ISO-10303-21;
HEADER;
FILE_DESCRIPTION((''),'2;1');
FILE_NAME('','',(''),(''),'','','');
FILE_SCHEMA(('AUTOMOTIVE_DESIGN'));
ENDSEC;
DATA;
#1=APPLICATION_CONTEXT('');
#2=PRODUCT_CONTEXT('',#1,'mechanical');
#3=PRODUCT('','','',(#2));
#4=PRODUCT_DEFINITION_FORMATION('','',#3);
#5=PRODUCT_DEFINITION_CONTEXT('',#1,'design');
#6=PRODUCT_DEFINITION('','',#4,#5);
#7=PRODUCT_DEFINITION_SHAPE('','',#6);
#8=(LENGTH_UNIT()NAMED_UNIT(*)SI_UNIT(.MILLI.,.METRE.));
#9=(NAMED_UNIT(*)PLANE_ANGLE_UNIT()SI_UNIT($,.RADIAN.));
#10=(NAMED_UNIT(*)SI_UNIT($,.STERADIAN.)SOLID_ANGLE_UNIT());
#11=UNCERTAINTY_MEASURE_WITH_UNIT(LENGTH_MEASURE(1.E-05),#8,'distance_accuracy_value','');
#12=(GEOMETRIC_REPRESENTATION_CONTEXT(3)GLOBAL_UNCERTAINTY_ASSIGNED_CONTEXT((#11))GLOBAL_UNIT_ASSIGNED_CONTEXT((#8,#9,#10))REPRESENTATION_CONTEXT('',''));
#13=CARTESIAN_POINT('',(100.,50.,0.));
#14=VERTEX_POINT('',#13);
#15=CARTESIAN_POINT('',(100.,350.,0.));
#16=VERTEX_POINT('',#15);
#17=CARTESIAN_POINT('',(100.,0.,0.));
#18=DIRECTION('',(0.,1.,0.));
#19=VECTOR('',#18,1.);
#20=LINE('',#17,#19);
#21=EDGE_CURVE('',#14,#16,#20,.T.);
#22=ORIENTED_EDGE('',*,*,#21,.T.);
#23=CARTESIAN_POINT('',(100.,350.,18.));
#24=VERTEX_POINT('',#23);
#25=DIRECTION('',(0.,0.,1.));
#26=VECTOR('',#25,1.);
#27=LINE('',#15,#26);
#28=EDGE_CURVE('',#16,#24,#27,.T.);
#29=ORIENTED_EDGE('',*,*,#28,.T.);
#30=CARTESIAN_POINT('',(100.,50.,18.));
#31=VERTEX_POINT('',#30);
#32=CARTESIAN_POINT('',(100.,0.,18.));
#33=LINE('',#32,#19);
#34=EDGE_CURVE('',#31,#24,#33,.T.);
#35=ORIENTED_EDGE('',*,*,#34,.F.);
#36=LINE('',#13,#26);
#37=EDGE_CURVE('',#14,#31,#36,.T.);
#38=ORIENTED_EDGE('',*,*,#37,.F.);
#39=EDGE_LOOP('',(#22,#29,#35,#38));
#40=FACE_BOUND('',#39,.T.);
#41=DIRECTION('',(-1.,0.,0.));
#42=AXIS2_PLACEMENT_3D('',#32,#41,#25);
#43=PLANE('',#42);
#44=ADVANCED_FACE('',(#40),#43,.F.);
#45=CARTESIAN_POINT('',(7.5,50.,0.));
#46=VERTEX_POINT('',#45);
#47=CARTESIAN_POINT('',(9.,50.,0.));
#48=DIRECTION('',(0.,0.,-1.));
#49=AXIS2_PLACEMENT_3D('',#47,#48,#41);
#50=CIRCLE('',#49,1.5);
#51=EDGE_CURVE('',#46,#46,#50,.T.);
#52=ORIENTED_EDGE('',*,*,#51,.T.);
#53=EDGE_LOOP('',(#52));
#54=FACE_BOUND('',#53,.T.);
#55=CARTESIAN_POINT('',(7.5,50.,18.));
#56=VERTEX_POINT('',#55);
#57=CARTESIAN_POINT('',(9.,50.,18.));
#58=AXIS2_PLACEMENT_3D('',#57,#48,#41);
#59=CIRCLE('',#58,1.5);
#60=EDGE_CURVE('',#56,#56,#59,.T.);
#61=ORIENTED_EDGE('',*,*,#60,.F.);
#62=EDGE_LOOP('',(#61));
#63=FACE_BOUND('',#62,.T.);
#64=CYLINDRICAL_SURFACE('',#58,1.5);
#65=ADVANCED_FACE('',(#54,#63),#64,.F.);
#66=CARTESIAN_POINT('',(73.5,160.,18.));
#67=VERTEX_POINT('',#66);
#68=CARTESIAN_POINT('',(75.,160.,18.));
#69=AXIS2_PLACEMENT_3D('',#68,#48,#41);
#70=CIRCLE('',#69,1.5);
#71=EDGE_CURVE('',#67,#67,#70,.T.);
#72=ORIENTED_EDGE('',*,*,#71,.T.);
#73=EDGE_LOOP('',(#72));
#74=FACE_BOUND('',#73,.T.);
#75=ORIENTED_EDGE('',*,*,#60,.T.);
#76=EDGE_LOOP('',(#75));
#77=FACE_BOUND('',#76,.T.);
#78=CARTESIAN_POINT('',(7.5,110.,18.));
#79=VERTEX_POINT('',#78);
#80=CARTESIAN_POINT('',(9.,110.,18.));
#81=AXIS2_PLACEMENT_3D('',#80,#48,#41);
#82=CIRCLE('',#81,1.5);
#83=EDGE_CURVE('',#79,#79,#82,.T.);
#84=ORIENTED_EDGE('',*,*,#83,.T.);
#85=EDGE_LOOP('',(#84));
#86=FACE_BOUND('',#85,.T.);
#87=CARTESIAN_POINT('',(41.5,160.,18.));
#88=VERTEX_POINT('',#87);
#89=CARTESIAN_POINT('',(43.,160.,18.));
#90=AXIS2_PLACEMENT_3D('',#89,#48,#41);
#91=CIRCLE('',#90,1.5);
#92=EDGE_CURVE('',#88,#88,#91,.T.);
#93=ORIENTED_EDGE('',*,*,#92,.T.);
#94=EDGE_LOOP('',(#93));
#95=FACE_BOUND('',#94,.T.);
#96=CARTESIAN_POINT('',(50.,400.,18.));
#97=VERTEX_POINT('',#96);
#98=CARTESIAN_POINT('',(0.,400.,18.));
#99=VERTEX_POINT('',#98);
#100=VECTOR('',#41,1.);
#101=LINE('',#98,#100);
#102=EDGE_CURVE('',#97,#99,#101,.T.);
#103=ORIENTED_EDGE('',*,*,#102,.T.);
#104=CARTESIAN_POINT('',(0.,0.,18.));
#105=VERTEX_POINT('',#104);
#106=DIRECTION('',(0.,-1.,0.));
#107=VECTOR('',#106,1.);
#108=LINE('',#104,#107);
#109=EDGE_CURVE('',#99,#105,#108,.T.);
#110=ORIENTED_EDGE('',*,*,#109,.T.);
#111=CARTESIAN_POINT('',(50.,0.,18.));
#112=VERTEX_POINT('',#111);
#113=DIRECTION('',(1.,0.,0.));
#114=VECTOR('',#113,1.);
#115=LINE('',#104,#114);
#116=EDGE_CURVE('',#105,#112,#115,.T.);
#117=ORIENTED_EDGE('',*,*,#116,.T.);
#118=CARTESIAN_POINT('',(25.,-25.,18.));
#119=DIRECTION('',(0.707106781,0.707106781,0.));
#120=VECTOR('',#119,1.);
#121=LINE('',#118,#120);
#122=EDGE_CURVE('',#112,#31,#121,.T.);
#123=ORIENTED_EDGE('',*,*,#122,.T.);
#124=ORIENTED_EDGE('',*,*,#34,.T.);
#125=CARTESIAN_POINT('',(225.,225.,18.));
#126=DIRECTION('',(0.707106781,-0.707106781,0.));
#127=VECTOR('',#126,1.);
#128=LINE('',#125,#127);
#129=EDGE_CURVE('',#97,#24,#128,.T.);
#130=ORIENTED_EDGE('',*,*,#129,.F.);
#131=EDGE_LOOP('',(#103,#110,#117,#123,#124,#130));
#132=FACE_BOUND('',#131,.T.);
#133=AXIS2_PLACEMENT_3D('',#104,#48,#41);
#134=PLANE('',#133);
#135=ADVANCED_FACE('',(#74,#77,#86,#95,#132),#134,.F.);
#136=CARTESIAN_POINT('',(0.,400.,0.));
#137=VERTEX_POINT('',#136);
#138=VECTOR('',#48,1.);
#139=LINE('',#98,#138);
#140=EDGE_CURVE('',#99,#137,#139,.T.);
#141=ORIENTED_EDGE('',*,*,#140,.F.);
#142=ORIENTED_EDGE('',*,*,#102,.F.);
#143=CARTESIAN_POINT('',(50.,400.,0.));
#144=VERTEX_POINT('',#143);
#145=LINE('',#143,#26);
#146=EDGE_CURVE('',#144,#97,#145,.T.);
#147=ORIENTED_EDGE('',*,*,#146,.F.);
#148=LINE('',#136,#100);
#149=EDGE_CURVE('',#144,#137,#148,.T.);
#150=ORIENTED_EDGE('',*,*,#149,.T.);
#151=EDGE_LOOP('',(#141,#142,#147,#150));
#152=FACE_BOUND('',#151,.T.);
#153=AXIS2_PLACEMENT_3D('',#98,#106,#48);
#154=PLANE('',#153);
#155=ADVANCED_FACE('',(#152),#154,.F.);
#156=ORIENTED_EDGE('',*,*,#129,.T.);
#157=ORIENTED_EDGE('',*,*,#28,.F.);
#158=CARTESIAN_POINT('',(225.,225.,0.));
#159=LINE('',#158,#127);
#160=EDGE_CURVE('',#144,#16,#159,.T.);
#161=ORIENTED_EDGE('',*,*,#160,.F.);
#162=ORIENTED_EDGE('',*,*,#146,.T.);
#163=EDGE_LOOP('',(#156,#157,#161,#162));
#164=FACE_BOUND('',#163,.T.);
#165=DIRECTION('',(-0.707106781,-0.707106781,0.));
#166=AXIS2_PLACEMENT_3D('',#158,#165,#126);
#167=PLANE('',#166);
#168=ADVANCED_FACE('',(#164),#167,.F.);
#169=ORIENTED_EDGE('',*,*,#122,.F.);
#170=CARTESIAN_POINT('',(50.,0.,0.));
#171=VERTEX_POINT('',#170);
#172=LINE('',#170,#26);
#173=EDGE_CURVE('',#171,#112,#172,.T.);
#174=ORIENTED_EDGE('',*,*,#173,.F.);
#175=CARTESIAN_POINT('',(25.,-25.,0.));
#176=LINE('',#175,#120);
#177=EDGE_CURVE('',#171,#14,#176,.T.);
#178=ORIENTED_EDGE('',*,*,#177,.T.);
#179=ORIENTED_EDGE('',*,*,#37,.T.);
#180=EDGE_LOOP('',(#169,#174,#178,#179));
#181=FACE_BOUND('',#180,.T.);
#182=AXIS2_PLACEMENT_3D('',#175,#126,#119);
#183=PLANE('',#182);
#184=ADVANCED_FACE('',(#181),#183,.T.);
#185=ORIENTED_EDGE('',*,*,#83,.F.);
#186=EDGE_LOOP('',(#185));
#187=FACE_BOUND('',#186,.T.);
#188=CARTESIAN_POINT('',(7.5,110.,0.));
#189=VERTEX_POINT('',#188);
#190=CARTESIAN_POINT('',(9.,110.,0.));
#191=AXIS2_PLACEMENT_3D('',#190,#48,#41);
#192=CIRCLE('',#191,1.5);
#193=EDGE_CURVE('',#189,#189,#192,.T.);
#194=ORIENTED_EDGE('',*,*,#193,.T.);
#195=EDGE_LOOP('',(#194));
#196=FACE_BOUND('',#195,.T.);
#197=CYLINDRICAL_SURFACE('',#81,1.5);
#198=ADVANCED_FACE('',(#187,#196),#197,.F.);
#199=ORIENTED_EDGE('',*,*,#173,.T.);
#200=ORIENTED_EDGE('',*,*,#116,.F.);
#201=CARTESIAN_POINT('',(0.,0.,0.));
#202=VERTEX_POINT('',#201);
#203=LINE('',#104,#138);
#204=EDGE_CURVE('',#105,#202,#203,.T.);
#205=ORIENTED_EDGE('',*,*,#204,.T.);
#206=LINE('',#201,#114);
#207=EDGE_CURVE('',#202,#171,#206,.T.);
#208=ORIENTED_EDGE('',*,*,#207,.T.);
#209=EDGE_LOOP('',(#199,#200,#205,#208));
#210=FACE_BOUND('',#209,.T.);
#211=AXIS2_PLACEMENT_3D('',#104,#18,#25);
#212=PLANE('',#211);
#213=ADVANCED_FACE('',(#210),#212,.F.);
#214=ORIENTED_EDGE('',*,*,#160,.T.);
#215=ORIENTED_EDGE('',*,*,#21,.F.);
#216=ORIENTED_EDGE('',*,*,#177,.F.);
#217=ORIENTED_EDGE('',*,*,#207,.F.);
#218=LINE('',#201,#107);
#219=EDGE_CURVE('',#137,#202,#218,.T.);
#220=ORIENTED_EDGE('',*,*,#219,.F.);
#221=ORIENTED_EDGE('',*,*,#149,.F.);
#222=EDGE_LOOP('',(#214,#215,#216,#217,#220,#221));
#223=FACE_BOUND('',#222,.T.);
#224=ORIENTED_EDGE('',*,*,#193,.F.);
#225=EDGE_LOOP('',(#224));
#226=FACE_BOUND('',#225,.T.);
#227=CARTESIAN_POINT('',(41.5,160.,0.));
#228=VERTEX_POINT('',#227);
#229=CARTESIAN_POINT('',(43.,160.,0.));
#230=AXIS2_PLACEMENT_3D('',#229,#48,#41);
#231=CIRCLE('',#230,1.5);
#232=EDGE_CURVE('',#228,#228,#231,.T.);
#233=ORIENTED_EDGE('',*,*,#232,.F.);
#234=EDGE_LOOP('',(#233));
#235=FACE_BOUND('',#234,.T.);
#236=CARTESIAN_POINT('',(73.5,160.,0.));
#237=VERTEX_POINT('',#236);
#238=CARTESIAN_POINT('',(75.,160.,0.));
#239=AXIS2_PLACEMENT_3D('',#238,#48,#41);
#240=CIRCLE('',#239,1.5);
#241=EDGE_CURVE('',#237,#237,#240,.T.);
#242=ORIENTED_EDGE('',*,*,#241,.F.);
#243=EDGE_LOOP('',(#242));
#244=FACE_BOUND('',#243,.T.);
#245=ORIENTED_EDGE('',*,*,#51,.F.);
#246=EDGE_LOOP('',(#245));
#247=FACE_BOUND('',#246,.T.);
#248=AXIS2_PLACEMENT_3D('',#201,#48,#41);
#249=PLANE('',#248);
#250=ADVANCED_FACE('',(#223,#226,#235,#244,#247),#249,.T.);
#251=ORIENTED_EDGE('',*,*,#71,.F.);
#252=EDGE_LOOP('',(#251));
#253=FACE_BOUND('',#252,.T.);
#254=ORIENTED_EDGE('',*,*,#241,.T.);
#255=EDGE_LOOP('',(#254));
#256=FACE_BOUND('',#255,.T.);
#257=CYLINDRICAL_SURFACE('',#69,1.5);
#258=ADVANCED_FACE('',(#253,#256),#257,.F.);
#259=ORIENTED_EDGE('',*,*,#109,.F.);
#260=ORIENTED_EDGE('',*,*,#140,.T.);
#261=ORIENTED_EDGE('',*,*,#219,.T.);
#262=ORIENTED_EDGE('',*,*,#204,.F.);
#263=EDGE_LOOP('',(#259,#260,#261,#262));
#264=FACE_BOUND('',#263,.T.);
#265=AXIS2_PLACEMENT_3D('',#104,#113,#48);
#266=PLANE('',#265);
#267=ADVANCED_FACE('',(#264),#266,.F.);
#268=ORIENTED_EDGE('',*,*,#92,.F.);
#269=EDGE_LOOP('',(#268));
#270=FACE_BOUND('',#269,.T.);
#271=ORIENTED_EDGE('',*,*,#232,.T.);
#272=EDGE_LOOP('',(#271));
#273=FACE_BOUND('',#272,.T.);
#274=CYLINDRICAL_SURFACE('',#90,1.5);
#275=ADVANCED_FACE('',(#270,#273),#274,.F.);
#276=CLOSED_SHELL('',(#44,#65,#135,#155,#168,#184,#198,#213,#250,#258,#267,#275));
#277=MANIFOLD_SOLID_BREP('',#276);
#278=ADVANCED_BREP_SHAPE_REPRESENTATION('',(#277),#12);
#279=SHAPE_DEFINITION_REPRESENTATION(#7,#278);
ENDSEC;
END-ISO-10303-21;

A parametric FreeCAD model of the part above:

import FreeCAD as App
import Part
import Sketcher
from FreeCAD import Vector

doc = App.newDocument("Part")
body = doc.addObject("PartDesign::Body", "Body")

# Sketch on XY plane
sketch1 = doc.addObject("Sketcher::SketchObject", "Sketch")
body.addObject(sketch1)
sketch1.AttachmentSupport = (doc.XY_Plane, [""])
sketch1.MapMode = "FlatFace"
sketch1.addGeometry(Part.LineSegment(Vector(0, 400, 0), Vector(0, 0, 0)), False)
sketch1.addGeometry(Part.LineSegment(Vector(0, 0, 0), Vector(100, 0, 0)), False)
sketch1.addGeometry(Part.LineSegment(Vector(100, 0, 0), Vector(100, 400, 0)), False)
sketch1.addGeometry(Part.LineSegment(Vector(100, 400, 0), Vector(0, 400, 0)), False)
sketch1.addConstraint(Sketcher.Constraint("Coincident", 0, 2, 1, 1))
sketch1.addConstraint(Sketcher.Constraint("Coincident", 1, 2, 2, 1))
sketch1.addConstraint(Sketcher.Constraint("Coincident", 2, 2, 3, 1))
sketch1.addConstraint(Sketcher.Constraint("Coincident", 3, 2, 0, 1))
sketch1.addConstraint(Sketcher.Constraint("Vertical", 0))
sketch1.addConstraint(Sketcher.Constraint("Horizontal", 1))
sketch1.addConstraint(Sketcher.Constraint("Vertical", 2))
sketch1.addConstraint(Sketcher.Constraint("Horizontal", 3))
sketch1.addConstraint(Sketcher.Constraint("Coincident", 0, 2, -1, 1))
sketch1.addConstraint(Sketcher.Constraint("DistanceX", 1, 1, 1, 2, 100.0))
sketch1.addConstraint(Sketcher.Constraint("DistanceY", 0, 2, 0, 1, 400.0))
pad1 = doc.addObject("PartDesign::Pad", "Pad")
body.addObject(pad1)
pad1.Profile = sketch1
pad1.Length = 18

# Sketch on XY plane
sketch2 = doc.addObject("Sketcher::SketchObject", "Sketch001")
body.addObject(sketch2)
sketch2.AttachmentSupport = (doc.XY_Plane, [""])
sketch2.MapMode = "FlatFace"
sketch2.AttachmentOffset = App.Placement(Vector(0, 0, 18), App.Rotation())
sketch2.addGeometry(Part.LineSegment(Vector(50, 400, 0), Vector(100, 350, 0)), False)
sketch2.addGeometry(Part.LineSegment(Vector(100, 350, 0), Vector(100, 400, 0)), False)
sketch2.addGeometry(Part.LineSegment(Vector(100, 400, 0), Vector(50, 400, 0)), False)
sketch2.addGeometry(Part.LineSegment(Vector(100, 50, 0), Vector(50, 0, 0)), False)
sketch2.addGeometry(Part.LineSegment(Vector(50, 0, 0), Vector(100, 0, 0)), False)
sketch2.addGeometry(Part.LineSegment(Vector(100, 0, 0), Vector(100, 50, 0)), False)
sketch2.addConstraint(Sketcher.Constraint("Coincident", 0, 2, 1, 1))
sketch2.addConstraint(Sketcher.Constraint("Coincident", 1, 2, 2, 1))
sketch2.addConstraint(Sketcher.Constraint("Coincident", 2, 2, 0, 1))
sketch2.addConstraint(Sketcher.Constraint("Coincident", 3, 2, 4, 1))
sketch2.addConstraint(Sketcher.Constraint("Coincident", 4, 2, 5, 1))
sketch2.addConstraint(Sketcher.Constraint("Coincident", 5, 2, 3, 1))
sketch2.addConstraint(Sketcher.Constraint("Vertical", 1))
sketch2.addConstraint(Sketcher.Constraint("Horizontal", 2))
sketch2.addConstraint(Sketcher.Constraint("Horizontal", 4))
sketch2.addConstraint(Sketcher.Constraint("Vertical", 5))
sketch2.addConstraint(Sketcher.Constraint("PointOnObject", 3, 2, -1))
sketch2.addConstraint(Sketcher.Constraint("Perpendicular", 0, 3))
sketch2.addConstraint(Sketcher.Constraint("Vertical", 2, 2, 3, 2))
sketch2.addConstraint(Sketcher.Constraint("Vertical", 1, 2, 4, 2))
sketch2.addConstraint(Sketcher.Constraint("Equal", 4, 1))
sketch2.addConstraint(Sketcher.Constraint("DistanceX", 2, 2, 2, 1, 50.0))
sketch2.addConstraint(Sketcher.Constraint("DistanceX", -1, 1, 0, 2, 100.0))
sketch2.addConstraint(Sketcher.Constraint("DistanceY", -1, 1, 0, 2, 350.0))
pocket1 = doc.addObject("PartDesign::Pocket", "Pocket")
body.addObject(pocket1)
pocket1.Profile = sketch2
pocket1.Type = "ThroughAll"

# Sketch on XY plane
sketch3 = doc.addObject("Sketcher::SketchObject", "Sketch002")
body.addObject(sketch3)
sketch3.AttachmentSupport = (doc.XY_Plane, [""])
sketch3.MapMode = "FlatFace"
sketch3.addGeometry(Part.Circle(Vector(75, 160, 0), Vector(0, 0, 1), 1.5), False)
sketch3.addGeometry(Part.Circle(Vector(43, 160, 0), Vector(0, 0, 1), 1.5), False)
sketch3.addGeometry(Part.Circle(Vector(9, 50, 0), Vector(0, 0, 1), 1.5), False)
sketch3.addGeometry(Part.Circle(Vector(9, 110, 0), Vector(0, 0, 1), 1.5), False)
sketch3.addConstraint(Sketcher.Constraint("Equal", 0, 1))
sketch3.addConstraint(Sketcher.Constraint("Equal", 1, 2))
sketch3.addConstraint(Sketcher.Constraint("Equal", 2, 3))
sketch3.addConstraint(Sketcher.Constraint("Horizontal", 0, 3, 1, 3))
sketch3.addConstraint(Sketcher.Constraint("Vertical", 2, 3, 3, 3))
sketch3.addConstraint(Sketcher.Constraint("Diameter", 0, 3.0))
sketch3.addConstraint(Sketcher.Constraint("DistanceX", -1, 1, 0, 3, 75.0))
sketch3.addConstraint(Sketcher.Constraint("DistanceY", -1, 1, 0, 3, 160.0))
sketch3.addConstraint(Sketcher.Constraint("DistanceX", -1, 1, 1, 3, 43.0))
sketch3.addConstraint(Sketcher.Constraint("DistanceX", -1, 1, 2, 3, 9.0))
sketch3.addConstraint(Sketcher.Constraint("DistanceY", -1, 1, 2, 3, 50.0))
sketch3.addConstraint(Sketcher.Constraint("DistanceY", -1, 1, 3, 3, 110.0))
pocket2 = doc.addObject("PartDesign::Pocket", "Pocket001")
body.addObject(pocket2)
pocket2.Profile = sketch3
pocket2.Type = "ThroughAll"
pocket2.Reversed = True

doc.recompute()
